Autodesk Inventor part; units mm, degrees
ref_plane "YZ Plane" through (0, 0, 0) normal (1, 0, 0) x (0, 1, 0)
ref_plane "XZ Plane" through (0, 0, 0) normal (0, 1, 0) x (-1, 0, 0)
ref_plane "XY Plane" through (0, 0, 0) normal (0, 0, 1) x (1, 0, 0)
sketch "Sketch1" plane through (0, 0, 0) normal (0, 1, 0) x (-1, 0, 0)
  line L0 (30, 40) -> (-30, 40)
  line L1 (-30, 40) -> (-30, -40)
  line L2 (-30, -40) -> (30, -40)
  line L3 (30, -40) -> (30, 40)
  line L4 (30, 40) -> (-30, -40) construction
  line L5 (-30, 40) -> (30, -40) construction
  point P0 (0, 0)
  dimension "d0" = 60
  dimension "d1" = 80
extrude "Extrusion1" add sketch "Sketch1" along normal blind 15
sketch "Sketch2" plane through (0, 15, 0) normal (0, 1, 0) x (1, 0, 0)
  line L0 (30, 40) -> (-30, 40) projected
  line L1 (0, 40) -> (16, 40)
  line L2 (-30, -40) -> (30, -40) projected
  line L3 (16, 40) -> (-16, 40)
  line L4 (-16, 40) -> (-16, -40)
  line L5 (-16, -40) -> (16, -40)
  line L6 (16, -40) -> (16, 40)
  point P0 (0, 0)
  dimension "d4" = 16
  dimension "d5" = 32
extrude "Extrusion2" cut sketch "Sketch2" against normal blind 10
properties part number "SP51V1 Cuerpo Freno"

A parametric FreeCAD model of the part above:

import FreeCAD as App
import Part
import Sketcher

doc = App.newDocument("Part")
body = doc.addObject("PartDesign::Body", "Body")

# Sketch on XZ plane
sketch1 = doc.addObject("Sketcher::SketchObject", "Sketch")
body.addObject(sketch1)
sketch1.AttachmentSupport = (doc.XZ_Plane, [""])
sketch1.MapMode = "FlatFace"
sketch1.addGeometry([
    Part.LineSegment(App.Vector(-30, -40, 0), App.Vector(-30, 40, 0)),
    Part.LineSegment(App.Vector(-30, 40, 0), App.Vector(30, 40, 0)),
    Part.LineSegment(App.Vector(30, 40, 0), App.Vector(30, -40, 0)),
    Part.LineSegment(App.Vector(30, -40, 0), App.Vector(-30, -40, 0)),
], False)
sketch1.addConstraint([
    Sketcher.Constraint("Coincident", 0, 2, 1, 1),
    Sketcher.Constraint("Coincident", 1, 2, 2, 1),
    Sketcher.Constraint("Coincident", 2, 2, 3, 1),
    Sketcher.Constraint("Coincident", 3, 2, 0, 1),
    Sketcher.Constraint("Vertical", 0),
    Sketcher.Constraint("Horizontal", 1),
    Sketcher.Constraint("Vertical", 2),
    Sketcher.Constraint("Horizontal", 3),
    Sketcher.Constraint("Symmetric", 0, 2, 2, 2, -1, 1),
    Sketcher.Constraint("DistanceX", 1, 1, 1, 2, 60.0),
    Sketcher.Constraint("DistanceY", 0, 1, 0, 2, 80.0),
])
pad1 = doc.addObject("PartDesign::Pad", "Pad")
body.addObject(pad1)
pad1.Profile = sketch1
pad1.Length = 15
pad1.Reversed = True

# Sketch on XZ plane
sketch2 = doc.addObject("Sketcher::SketchObject", "Sketch001")
body.addObject(sketch2)
sketch2.AttachmentSupport = (doc.XZ_Plane, [""])
sketch2.MapMode = "FlatFace"
sketch2.AttachmentOffset = App.Placement(App.Vector(0, 0, -15), App.Rotation())
sketch2.addGeometry([
    Part.LineSegment(App.Vector(16, 40, 0), App.Vector(16, -40, 0)),
    Part.LineSegment(App.Vector(16, -40, 0), App.Vector(-16, -40, 0)),
    Part.LineSegment(App.Vector(-16, -40, 0), App.Vector(-16, 40, 0)),
    Part.LineSegment(App.Vector(-16, 40, 0), App.Vector(16, 40, 0)),
], False)
sketch2.addConstraint([
    Sketcher.Constraint("Coincident", 0, 2, 1, 1),
    Sketcher.Constraint("Coincident", 1, 2, 2, 1),
    Sketcher.Constraint("Coincident", 2, 2, 3, 1),
    Sketcher.Constraint("Coincident", 3, 2, 0, 1),
    Sketcher.Constraint("Vertical", 0),
    Sketcher.Constraint("Horizontal", 1),
    Sketcher.Constraint("Vertical", 2),
    Sketcher.Constraint("Horizontal", 3),
    Sketcher.Constraint("Symmetric", 0, 2, 2, 2, -1, 1),
    Sketcher.Constraint("DistanceX", 1, 2, 1, 1, 32.0),
    Sketcher.Constraint("DistanceY", 0, 2, 0, 1, 80.0),
])
pocket1 = doc.addObject("PartDesign::Pocket", "Pocket")
body.addObject(pocket1)
pocket1.Profile = sketch2
pocket1.Length = 10
pocket1.Reversed = True

doc.recompute()
